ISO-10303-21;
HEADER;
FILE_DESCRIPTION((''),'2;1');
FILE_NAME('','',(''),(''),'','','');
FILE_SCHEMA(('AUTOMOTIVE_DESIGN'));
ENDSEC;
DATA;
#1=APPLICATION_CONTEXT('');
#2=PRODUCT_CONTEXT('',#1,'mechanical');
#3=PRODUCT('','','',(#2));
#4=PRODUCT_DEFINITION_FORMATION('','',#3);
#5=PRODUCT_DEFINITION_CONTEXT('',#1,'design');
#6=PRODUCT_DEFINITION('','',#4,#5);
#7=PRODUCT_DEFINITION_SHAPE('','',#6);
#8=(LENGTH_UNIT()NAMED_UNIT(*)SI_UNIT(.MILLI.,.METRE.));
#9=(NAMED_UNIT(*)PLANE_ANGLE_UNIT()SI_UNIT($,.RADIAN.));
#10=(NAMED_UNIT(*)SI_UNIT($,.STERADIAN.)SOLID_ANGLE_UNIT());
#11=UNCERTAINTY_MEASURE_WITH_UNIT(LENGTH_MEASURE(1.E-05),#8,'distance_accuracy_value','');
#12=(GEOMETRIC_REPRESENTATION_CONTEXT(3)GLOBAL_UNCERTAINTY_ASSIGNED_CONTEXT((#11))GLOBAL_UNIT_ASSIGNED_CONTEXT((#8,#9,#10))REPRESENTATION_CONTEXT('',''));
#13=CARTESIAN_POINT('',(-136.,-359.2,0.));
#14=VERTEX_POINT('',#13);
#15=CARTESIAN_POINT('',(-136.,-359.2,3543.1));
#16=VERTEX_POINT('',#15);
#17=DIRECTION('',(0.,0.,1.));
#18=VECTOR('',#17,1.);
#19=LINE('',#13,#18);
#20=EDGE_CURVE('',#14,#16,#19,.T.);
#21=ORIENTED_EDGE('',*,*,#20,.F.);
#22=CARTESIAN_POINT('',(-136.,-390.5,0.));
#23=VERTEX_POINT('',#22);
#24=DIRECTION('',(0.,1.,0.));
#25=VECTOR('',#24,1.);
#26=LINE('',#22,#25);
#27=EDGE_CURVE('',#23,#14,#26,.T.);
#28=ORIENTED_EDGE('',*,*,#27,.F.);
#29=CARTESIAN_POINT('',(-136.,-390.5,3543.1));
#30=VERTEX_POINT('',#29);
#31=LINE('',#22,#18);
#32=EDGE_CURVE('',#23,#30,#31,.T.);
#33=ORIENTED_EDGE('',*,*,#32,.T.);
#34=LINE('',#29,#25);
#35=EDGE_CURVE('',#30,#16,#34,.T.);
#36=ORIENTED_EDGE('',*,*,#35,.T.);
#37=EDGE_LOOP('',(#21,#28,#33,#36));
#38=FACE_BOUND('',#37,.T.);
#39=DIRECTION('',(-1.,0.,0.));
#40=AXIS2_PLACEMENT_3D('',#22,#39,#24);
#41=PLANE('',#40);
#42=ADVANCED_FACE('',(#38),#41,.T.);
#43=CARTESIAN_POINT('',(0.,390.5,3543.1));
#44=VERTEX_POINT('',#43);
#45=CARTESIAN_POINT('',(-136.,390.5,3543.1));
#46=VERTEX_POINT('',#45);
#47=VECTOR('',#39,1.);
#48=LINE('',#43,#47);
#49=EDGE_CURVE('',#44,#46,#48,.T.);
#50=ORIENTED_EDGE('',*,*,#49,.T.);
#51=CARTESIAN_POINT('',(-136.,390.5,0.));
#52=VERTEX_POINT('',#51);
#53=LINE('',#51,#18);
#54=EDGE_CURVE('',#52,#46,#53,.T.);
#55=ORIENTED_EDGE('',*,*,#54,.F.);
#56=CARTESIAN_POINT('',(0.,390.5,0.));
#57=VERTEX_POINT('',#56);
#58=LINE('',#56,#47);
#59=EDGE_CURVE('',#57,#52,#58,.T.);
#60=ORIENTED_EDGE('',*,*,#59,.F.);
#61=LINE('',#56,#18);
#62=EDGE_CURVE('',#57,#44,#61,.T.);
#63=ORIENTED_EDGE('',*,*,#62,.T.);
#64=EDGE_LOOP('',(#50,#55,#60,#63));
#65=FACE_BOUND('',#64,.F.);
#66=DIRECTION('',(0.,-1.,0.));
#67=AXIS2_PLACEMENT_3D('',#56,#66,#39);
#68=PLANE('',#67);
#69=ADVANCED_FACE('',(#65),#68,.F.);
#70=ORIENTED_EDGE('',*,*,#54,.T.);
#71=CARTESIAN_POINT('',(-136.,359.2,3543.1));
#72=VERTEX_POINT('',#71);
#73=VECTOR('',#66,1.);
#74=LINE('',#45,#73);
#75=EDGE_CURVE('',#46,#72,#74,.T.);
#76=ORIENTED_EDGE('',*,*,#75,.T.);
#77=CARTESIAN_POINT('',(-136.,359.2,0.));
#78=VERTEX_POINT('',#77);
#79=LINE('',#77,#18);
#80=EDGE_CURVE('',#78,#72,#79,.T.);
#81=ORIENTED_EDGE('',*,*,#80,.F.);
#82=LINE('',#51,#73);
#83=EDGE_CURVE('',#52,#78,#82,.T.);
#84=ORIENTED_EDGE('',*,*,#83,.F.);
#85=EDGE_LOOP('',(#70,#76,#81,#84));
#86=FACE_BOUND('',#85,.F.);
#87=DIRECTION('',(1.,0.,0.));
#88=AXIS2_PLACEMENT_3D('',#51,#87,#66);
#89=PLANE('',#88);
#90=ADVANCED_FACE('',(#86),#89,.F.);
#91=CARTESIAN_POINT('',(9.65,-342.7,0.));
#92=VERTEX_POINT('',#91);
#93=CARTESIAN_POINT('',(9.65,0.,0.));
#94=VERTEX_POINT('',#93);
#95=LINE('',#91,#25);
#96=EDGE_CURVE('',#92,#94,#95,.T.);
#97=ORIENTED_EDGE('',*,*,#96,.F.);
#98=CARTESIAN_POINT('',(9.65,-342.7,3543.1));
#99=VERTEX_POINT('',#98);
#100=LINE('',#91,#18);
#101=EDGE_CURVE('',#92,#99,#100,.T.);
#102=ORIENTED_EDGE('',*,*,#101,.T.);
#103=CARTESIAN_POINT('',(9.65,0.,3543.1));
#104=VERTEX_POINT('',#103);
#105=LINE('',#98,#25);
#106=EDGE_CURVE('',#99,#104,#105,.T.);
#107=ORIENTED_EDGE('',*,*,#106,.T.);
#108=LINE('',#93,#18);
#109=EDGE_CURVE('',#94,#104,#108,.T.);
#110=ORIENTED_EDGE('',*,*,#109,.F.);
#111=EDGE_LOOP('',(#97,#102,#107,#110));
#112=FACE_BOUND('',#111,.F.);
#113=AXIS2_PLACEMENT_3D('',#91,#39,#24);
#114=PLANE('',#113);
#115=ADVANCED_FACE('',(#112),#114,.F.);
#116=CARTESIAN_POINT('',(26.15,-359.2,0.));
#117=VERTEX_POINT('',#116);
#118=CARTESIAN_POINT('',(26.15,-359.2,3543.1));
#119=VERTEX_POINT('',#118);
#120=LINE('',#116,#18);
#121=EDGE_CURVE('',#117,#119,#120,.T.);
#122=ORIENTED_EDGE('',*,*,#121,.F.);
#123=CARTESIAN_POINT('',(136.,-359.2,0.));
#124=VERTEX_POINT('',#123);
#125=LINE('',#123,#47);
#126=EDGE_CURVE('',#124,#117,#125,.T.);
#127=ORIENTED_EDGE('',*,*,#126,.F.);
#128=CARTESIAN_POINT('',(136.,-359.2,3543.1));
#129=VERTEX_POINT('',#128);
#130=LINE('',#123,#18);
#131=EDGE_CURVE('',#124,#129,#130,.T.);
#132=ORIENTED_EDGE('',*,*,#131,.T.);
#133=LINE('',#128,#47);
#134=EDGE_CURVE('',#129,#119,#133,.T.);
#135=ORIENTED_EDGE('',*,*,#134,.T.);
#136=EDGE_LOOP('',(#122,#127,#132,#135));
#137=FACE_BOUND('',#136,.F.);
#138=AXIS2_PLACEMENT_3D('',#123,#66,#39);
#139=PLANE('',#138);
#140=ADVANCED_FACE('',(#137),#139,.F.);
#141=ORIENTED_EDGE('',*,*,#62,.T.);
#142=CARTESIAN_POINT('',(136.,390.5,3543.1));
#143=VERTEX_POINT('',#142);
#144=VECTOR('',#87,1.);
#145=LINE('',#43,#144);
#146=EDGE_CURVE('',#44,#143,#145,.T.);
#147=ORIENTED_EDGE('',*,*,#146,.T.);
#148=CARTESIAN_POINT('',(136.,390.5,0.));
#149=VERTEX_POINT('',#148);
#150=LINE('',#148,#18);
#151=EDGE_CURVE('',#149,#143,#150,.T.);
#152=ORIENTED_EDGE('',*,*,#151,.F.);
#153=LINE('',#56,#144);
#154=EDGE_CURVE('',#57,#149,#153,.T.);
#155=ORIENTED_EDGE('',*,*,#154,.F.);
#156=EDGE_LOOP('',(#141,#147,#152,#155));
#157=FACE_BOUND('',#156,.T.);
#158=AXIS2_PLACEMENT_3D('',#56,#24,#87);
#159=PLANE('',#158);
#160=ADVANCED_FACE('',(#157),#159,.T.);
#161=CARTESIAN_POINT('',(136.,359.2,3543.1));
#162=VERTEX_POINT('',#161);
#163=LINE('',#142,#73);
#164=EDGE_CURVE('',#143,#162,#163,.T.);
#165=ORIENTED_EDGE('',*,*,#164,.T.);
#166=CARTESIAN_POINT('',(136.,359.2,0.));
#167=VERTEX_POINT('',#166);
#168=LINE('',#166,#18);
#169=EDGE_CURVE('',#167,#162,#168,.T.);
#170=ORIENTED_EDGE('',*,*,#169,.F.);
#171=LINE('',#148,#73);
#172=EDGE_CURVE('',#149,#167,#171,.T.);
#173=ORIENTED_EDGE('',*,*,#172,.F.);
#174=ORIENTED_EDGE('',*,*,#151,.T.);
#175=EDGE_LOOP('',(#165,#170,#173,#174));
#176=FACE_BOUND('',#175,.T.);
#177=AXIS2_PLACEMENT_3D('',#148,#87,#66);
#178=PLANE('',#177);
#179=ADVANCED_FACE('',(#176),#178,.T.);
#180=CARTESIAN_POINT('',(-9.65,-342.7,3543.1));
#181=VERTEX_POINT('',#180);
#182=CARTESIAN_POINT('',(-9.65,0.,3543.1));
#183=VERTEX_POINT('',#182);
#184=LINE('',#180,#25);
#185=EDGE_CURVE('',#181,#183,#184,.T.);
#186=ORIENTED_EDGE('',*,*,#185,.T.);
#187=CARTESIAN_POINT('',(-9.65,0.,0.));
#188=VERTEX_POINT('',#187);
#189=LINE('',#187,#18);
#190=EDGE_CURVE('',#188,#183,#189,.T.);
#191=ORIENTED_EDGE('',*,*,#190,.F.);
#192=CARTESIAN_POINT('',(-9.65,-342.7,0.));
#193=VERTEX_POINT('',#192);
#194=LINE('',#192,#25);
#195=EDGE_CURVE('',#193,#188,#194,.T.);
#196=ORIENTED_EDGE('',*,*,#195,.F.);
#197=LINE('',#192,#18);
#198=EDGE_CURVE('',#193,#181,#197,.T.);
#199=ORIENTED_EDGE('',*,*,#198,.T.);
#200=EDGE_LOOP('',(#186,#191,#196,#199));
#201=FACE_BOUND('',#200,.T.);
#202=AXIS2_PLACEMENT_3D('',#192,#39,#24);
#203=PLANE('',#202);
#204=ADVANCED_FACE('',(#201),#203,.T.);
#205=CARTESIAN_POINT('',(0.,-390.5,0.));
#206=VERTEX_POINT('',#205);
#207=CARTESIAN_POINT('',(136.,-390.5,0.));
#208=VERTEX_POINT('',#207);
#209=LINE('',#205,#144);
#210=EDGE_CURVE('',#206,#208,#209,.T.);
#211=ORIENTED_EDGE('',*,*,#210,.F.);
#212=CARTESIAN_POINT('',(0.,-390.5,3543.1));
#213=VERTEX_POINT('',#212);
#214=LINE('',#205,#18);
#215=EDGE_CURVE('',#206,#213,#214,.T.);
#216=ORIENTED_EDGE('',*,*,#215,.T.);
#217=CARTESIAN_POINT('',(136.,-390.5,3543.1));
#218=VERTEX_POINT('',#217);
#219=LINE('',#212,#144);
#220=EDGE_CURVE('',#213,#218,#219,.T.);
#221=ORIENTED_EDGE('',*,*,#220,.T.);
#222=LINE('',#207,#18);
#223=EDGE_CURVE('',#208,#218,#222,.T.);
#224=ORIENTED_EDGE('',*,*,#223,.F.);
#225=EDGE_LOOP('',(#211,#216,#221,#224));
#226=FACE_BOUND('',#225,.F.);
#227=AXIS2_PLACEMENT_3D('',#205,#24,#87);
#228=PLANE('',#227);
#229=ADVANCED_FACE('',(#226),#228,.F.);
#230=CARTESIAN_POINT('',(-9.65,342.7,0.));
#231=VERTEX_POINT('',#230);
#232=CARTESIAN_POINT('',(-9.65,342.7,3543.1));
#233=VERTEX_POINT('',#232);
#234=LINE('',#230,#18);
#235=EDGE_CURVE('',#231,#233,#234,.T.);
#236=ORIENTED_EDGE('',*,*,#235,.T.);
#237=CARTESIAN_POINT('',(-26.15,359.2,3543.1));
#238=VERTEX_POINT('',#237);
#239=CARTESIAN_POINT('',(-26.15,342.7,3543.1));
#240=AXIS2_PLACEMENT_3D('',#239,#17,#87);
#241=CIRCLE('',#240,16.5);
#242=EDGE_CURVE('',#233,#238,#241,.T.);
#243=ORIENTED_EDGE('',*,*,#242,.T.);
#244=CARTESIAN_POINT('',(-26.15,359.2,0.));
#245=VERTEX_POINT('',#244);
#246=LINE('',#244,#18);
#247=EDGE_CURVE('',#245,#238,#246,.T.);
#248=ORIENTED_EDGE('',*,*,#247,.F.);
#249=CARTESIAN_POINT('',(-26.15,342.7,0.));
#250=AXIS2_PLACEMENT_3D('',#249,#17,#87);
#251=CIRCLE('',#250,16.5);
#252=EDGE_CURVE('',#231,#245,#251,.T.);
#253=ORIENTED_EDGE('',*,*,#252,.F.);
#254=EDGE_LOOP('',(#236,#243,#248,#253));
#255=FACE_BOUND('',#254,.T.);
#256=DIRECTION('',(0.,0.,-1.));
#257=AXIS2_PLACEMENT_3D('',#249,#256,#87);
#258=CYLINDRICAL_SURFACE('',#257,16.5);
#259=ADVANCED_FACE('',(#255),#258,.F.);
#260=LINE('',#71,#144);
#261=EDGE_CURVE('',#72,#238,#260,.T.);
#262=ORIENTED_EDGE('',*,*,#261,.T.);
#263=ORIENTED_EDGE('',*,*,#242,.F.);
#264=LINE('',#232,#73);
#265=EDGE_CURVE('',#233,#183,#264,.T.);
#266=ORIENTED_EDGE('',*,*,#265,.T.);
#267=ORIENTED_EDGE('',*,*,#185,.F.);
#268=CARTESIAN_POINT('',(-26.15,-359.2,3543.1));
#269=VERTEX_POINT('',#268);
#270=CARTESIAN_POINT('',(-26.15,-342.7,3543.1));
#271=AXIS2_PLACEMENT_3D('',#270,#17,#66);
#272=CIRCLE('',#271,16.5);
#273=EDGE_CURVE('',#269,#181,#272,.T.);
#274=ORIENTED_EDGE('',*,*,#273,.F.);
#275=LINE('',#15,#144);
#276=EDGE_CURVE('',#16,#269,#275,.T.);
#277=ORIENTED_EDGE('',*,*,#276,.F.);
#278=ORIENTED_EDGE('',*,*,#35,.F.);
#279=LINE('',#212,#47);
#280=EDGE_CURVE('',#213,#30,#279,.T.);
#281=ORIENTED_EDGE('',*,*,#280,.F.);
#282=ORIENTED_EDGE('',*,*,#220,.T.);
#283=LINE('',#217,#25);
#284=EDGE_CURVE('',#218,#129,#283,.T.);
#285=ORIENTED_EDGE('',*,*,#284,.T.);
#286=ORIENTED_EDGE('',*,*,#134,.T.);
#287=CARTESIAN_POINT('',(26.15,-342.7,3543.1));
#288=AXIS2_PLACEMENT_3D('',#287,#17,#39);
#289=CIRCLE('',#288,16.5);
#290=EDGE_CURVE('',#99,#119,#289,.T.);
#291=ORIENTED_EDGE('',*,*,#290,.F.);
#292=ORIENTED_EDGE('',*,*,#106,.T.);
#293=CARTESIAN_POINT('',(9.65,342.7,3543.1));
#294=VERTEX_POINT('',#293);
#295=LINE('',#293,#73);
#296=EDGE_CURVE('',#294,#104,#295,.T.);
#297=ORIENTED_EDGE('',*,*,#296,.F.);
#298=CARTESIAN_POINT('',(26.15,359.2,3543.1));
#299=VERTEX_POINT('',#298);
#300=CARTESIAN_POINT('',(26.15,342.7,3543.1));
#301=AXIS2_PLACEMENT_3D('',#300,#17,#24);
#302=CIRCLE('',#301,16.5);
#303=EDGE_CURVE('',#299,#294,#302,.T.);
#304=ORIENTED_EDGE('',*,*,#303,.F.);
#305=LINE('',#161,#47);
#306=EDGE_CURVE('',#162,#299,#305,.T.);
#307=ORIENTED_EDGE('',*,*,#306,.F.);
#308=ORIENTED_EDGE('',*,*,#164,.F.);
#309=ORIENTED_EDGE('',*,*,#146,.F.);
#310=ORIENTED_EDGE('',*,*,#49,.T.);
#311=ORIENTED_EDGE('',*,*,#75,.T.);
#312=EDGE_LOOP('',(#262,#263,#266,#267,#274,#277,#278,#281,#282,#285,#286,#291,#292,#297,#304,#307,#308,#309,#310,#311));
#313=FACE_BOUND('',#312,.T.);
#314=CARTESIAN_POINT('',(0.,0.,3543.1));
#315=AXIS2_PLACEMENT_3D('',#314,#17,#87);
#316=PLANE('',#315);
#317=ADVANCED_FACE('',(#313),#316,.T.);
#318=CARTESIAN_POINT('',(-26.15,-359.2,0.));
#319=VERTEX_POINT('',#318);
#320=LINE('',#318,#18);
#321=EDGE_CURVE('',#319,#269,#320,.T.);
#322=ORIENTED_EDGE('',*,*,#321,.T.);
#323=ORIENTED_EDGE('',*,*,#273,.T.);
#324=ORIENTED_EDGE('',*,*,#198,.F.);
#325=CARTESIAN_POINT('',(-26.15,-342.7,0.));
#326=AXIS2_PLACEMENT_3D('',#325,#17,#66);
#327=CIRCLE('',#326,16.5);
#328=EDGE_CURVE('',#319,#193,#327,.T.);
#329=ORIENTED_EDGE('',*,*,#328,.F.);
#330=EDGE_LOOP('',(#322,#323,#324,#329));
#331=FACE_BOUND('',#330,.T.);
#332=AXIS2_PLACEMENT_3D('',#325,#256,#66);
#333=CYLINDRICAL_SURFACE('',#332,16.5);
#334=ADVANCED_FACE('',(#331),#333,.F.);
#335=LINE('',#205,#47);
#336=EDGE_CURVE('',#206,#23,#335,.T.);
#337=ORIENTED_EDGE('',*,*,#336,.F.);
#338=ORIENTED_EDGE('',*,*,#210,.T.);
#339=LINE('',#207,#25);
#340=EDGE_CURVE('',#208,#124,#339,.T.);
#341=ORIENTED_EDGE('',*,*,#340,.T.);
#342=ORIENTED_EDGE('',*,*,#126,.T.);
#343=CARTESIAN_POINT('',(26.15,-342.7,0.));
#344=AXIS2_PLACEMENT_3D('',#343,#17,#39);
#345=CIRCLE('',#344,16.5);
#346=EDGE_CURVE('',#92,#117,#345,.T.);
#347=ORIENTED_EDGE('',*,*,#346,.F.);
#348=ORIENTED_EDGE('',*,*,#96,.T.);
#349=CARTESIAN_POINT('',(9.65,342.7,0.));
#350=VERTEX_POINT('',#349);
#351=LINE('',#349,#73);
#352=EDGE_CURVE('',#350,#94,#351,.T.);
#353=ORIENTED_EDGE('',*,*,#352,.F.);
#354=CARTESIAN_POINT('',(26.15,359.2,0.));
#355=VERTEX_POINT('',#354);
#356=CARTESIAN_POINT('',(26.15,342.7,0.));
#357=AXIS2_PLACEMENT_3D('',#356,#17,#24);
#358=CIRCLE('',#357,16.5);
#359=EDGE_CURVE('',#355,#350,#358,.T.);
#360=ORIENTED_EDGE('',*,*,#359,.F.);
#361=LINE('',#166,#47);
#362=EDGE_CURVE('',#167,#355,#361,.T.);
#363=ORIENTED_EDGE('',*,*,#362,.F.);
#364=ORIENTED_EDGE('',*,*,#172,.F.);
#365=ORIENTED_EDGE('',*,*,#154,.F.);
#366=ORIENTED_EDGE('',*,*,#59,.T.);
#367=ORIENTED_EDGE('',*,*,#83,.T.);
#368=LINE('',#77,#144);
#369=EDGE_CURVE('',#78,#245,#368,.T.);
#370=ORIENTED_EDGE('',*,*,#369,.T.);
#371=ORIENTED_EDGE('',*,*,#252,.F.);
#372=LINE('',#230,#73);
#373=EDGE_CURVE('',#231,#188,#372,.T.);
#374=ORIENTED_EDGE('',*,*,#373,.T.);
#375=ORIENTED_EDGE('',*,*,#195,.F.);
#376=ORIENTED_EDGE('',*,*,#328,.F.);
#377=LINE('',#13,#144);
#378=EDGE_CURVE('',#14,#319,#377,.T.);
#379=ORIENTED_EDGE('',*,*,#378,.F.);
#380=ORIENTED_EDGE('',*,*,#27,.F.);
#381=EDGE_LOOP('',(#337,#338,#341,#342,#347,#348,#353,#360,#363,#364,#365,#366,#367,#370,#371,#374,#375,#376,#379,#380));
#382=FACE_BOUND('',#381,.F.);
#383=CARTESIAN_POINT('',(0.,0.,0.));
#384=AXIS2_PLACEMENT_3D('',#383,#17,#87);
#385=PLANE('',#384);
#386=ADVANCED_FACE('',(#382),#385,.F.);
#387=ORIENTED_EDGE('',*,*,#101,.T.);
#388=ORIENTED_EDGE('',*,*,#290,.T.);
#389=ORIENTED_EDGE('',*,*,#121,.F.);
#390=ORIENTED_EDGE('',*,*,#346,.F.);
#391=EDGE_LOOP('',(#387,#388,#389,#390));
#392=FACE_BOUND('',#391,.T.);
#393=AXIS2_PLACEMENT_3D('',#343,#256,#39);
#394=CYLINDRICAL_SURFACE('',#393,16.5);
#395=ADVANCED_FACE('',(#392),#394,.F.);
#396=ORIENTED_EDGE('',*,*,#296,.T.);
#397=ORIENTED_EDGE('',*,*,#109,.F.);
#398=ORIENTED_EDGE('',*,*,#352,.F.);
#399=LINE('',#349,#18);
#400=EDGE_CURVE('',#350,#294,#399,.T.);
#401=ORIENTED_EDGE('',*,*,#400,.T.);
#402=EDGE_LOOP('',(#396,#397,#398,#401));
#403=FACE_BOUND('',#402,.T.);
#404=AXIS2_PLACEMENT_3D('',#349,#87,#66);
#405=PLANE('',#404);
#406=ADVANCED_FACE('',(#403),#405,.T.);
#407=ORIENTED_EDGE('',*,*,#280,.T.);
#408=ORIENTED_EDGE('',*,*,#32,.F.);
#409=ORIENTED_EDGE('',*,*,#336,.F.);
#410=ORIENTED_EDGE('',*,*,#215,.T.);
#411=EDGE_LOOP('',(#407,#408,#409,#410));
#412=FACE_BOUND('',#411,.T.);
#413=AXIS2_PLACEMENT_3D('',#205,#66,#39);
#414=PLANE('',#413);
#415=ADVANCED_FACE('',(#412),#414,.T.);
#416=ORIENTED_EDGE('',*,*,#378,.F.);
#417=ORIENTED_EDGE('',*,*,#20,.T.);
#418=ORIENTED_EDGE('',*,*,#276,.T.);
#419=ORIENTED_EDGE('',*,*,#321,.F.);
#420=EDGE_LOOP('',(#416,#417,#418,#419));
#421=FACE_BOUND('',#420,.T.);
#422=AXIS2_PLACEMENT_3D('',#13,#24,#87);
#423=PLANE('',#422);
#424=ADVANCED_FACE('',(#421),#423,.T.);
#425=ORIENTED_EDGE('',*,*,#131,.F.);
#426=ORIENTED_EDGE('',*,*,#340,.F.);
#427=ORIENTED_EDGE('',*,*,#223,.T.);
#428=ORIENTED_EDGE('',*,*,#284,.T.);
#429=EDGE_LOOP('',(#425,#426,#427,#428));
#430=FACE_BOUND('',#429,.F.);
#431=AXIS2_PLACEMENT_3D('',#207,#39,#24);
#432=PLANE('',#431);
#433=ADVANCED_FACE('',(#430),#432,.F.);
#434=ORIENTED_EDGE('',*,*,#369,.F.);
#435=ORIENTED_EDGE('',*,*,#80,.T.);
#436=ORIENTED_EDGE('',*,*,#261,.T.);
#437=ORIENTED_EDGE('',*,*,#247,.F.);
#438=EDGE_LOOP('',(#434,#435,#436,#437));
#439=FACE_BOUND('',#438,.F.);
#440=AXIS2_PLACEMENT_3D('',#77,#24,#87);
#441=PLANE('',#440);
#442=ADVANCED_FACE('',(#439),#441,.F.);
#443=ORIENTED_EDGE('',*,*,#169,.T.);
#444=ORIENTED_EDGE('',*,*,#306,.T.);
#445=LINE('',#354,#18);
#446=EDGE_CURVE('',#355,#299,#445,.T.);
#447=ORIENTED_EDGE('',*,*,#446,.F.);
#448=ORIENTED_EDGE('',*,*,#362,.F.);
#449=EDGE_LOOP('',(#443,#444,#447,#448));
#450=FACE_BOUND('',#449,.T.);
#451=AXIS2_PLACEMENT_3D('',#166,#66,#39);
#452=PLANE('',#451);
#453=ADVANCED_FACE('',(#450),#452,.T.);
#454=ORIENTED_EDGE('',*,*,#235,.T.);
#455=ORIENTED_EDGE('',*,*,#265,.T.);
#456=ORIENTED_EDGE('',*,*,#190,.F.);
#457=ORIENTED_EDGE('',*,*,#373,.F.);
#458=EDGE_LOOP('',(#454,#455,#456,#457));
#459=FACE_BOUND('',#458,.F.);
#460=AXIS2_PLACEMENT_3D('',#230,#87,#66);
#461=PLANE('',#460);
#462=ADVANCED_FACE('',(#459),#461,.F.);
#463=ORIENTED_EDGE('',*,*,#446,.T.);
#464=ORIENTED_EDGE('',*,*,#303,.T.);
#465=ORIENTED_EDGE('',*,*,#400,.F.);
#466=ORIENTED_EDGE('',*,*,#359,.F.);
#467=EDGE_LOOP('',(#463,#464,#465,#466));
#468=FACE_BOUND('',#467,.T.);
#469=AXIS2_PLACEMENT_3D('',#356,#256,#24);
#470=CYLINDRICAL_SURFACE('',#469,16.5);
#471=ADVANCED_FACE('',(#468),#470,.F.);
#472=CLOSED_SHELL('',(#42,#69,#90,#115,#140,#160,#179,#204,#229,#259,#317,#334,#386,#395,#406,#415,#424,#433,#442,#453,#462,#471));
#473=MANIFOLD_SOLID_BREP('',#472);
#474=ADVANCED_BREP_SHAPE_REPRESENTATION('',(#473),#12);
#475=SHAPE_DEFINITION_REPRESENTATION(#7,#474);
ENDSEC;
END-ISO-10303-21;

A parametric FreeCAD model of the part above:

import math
import FreeCAD as App
import Part
import Sketcher
Q = App.Units.Quantity

doc = App.newDocument("Part")
body = doc.addObject("PartDesign::Body", "Body")

# Sketch on XY plane
sketch1 = body.newObject("Sketcher::SketchObject", "Sketch")
sketch1.AttachmentSupport = (doc.getObject("XY_Plane"), [""])
sketch1.MapMode = "FlatFace"
sketch1.addGeometry([
    Part.LineSegment(App.Vector(-136, -359, 0), App.Vector(-136, -390, 0)),  # 0
    Part.LineSegment(App.Vector(-136, -390, 0), App.Vector(136, -390, 0)),  # 1
    Part.LineSegment(App.Vector(136, -390, 0), App.Vector(136, -359, 0)),  # 2
    Part.LineSegment(App.Vector(136, -359, 0), App.Vector(26, -359, 0)),  # 3
    Part.ArcOfCircle(Part.Circle(App.Vector(26, -343, 0), App.Vector(0, 0, 1), 16), math.radians(180), math.radians(270)),  # 4
    Part.LineSegment(App.Vector(10, -343, 0), App.Vector(10, 343, 0)),  # 5
    Part.ArcOfCircle(Part.Circle(App.Vector(26, 343, 0), App.Vector(0, 0, 1), 16), math.radians(90), math.radians(180)),  # 6
    Part.LineSegment(App.Vector(26, 359, 0), App.Vector(136, 359, 0)),  # 7
    Part.LineSegment(App.Vector(136, 359, 0), App.Vector(136, 390, 0)),  # 8
    Part.LineSegment(App.Vector(136, 390, 0), App.Vector(-136, 390, 0)),  # 9
    Part.LineSegment(App.Vector(-136, 390, 0), App.Vector(-136, 359, 0)),  # 10
    Part.LineSegment(App.Vector(-136, 359, 0), App.Vector(-26, 359, 0)),  # 11
    Part.ArcOfCircle(Part.Circle(App.Vector(-26, 343, 0), App.Vector(0, 0, 1), 16), math.radians(0), math.radians(90)),  # 12
    Part.LineSegment(App.Vector(-10, 343, 0), App.Vector(-10, -343, 0)),  # 13
    Part.ArcOfCircle(Part.Circle(App.Vector(-26, -343, 0), App.Vector(0, 0, 1), 16), math.radians(-90), math.radians(0)),  # 14
    Part.LineSegment(App.Vector(-26, -359, 0), App.Vector(-136, -359, 0)),  # 15
], False)
sketch1.addConstraint([
    Sketcher.Constraint("Coincident", 0, 2, 1, 1),
    Sketcher.Constraint("Coincident", 1, 2, 2, 1),
    Sketcher.Constraint("Coincident", 2, 2, 3, 1),
    Sketcher.Constraint("Tangent", 3, 2, 4, 2),
    Sketcher.Constraint("Tangent", 4, 1, 5, 1),
    Sketcher.Constraint("Tangent", 5, 2, 6, 2),
    Sketcher.Constraint("Tangent", 6, 1, 7, 1),
    Sketcher.Constraint("Coincident", 7, 2, 8, 1),
    Sketcher.Constraint("Coincident", 8, 2, 9, 1),
    Sketcher.Constraint("Coincident", 9, 2, 10, 1),
    Sketcher.Constraint("Coincident", 10, 2, 11, 1),
    Sketcher.Constraint("Tangent", 11, 2, 12, 2),
    Sketcher.Constraint("Tangent", 12, 1, 13, 1),
    Sketcher.Constraint("Tangent", 13, 2, 14, 2),
    Sketcher.Constraint("Tangent", 14, 1, 15, 1),
    Sketcher.Constraint("Coincident", 15, 2, 0, 1),
    Sketcher.Constraint("Vertical", 0),
    Sketcher.Constraint("Horizontal", 1),
    Sketcher.Constraint("Vertical", 2),
    Sketcher.Constraint("Horizontal", 3),
    Sketcher.Constraint("Vertical", 5),
    Sketcher.Constraint("Horizontal", 7),
    Sketcher.Constraint("Vertical", 8),
    Sketcher.Constraint("Horizontal", 9),
    Sketcher.Constraint("Vertical", 10),
    Sketcher.Constraint("Horizontal", 11),
    Sketcher.Constraint("Vertical", 13),
    Sketcher.Constraint("Horizontal", 15),
    Sketcher.Constraint("Equal", 4, 6),
    Sketcher.Constraint("Equal", 6, 12),
    Sketcher.Constraint("Equal", 12, 14),
    Sketcher.Constraint("Symmetric", 4, 3, 12, 3, -1, 1),
    Sketcher.Constraint("Symmetric", 0, 2, 8, 2, -1, 1),
    Sketcher.Constraint("Symmetric", 7, 2, 10, 2, -2),
    Sketcher.Constraint("Symmetric", 2, 2, 15, 2, -2),
    Sketcher.Constraint("Radius", 4, Q("16.5 mm")),
    Sketcher.Constraint("DistanceY", 0, 2, 0, 1, Q("31.3 mm")),
    Sketcher.Constraint("DistanceX", 0, 2, -1, 1, Q("136 mm")),
    Sketcher.Constraint("DistanceY", 0, 2, -1, 1, Q("390.5 mm")),
    Sketcher.Constraint("DistanceX", -1, 1, 4, 1, Q("9.65 mm")),
])
pad1 = body.newObject("PartDesign::Pad", "Pad")
pad1.Profile = sketch1
pad1.Length = 3543.1

doc.recompute()
